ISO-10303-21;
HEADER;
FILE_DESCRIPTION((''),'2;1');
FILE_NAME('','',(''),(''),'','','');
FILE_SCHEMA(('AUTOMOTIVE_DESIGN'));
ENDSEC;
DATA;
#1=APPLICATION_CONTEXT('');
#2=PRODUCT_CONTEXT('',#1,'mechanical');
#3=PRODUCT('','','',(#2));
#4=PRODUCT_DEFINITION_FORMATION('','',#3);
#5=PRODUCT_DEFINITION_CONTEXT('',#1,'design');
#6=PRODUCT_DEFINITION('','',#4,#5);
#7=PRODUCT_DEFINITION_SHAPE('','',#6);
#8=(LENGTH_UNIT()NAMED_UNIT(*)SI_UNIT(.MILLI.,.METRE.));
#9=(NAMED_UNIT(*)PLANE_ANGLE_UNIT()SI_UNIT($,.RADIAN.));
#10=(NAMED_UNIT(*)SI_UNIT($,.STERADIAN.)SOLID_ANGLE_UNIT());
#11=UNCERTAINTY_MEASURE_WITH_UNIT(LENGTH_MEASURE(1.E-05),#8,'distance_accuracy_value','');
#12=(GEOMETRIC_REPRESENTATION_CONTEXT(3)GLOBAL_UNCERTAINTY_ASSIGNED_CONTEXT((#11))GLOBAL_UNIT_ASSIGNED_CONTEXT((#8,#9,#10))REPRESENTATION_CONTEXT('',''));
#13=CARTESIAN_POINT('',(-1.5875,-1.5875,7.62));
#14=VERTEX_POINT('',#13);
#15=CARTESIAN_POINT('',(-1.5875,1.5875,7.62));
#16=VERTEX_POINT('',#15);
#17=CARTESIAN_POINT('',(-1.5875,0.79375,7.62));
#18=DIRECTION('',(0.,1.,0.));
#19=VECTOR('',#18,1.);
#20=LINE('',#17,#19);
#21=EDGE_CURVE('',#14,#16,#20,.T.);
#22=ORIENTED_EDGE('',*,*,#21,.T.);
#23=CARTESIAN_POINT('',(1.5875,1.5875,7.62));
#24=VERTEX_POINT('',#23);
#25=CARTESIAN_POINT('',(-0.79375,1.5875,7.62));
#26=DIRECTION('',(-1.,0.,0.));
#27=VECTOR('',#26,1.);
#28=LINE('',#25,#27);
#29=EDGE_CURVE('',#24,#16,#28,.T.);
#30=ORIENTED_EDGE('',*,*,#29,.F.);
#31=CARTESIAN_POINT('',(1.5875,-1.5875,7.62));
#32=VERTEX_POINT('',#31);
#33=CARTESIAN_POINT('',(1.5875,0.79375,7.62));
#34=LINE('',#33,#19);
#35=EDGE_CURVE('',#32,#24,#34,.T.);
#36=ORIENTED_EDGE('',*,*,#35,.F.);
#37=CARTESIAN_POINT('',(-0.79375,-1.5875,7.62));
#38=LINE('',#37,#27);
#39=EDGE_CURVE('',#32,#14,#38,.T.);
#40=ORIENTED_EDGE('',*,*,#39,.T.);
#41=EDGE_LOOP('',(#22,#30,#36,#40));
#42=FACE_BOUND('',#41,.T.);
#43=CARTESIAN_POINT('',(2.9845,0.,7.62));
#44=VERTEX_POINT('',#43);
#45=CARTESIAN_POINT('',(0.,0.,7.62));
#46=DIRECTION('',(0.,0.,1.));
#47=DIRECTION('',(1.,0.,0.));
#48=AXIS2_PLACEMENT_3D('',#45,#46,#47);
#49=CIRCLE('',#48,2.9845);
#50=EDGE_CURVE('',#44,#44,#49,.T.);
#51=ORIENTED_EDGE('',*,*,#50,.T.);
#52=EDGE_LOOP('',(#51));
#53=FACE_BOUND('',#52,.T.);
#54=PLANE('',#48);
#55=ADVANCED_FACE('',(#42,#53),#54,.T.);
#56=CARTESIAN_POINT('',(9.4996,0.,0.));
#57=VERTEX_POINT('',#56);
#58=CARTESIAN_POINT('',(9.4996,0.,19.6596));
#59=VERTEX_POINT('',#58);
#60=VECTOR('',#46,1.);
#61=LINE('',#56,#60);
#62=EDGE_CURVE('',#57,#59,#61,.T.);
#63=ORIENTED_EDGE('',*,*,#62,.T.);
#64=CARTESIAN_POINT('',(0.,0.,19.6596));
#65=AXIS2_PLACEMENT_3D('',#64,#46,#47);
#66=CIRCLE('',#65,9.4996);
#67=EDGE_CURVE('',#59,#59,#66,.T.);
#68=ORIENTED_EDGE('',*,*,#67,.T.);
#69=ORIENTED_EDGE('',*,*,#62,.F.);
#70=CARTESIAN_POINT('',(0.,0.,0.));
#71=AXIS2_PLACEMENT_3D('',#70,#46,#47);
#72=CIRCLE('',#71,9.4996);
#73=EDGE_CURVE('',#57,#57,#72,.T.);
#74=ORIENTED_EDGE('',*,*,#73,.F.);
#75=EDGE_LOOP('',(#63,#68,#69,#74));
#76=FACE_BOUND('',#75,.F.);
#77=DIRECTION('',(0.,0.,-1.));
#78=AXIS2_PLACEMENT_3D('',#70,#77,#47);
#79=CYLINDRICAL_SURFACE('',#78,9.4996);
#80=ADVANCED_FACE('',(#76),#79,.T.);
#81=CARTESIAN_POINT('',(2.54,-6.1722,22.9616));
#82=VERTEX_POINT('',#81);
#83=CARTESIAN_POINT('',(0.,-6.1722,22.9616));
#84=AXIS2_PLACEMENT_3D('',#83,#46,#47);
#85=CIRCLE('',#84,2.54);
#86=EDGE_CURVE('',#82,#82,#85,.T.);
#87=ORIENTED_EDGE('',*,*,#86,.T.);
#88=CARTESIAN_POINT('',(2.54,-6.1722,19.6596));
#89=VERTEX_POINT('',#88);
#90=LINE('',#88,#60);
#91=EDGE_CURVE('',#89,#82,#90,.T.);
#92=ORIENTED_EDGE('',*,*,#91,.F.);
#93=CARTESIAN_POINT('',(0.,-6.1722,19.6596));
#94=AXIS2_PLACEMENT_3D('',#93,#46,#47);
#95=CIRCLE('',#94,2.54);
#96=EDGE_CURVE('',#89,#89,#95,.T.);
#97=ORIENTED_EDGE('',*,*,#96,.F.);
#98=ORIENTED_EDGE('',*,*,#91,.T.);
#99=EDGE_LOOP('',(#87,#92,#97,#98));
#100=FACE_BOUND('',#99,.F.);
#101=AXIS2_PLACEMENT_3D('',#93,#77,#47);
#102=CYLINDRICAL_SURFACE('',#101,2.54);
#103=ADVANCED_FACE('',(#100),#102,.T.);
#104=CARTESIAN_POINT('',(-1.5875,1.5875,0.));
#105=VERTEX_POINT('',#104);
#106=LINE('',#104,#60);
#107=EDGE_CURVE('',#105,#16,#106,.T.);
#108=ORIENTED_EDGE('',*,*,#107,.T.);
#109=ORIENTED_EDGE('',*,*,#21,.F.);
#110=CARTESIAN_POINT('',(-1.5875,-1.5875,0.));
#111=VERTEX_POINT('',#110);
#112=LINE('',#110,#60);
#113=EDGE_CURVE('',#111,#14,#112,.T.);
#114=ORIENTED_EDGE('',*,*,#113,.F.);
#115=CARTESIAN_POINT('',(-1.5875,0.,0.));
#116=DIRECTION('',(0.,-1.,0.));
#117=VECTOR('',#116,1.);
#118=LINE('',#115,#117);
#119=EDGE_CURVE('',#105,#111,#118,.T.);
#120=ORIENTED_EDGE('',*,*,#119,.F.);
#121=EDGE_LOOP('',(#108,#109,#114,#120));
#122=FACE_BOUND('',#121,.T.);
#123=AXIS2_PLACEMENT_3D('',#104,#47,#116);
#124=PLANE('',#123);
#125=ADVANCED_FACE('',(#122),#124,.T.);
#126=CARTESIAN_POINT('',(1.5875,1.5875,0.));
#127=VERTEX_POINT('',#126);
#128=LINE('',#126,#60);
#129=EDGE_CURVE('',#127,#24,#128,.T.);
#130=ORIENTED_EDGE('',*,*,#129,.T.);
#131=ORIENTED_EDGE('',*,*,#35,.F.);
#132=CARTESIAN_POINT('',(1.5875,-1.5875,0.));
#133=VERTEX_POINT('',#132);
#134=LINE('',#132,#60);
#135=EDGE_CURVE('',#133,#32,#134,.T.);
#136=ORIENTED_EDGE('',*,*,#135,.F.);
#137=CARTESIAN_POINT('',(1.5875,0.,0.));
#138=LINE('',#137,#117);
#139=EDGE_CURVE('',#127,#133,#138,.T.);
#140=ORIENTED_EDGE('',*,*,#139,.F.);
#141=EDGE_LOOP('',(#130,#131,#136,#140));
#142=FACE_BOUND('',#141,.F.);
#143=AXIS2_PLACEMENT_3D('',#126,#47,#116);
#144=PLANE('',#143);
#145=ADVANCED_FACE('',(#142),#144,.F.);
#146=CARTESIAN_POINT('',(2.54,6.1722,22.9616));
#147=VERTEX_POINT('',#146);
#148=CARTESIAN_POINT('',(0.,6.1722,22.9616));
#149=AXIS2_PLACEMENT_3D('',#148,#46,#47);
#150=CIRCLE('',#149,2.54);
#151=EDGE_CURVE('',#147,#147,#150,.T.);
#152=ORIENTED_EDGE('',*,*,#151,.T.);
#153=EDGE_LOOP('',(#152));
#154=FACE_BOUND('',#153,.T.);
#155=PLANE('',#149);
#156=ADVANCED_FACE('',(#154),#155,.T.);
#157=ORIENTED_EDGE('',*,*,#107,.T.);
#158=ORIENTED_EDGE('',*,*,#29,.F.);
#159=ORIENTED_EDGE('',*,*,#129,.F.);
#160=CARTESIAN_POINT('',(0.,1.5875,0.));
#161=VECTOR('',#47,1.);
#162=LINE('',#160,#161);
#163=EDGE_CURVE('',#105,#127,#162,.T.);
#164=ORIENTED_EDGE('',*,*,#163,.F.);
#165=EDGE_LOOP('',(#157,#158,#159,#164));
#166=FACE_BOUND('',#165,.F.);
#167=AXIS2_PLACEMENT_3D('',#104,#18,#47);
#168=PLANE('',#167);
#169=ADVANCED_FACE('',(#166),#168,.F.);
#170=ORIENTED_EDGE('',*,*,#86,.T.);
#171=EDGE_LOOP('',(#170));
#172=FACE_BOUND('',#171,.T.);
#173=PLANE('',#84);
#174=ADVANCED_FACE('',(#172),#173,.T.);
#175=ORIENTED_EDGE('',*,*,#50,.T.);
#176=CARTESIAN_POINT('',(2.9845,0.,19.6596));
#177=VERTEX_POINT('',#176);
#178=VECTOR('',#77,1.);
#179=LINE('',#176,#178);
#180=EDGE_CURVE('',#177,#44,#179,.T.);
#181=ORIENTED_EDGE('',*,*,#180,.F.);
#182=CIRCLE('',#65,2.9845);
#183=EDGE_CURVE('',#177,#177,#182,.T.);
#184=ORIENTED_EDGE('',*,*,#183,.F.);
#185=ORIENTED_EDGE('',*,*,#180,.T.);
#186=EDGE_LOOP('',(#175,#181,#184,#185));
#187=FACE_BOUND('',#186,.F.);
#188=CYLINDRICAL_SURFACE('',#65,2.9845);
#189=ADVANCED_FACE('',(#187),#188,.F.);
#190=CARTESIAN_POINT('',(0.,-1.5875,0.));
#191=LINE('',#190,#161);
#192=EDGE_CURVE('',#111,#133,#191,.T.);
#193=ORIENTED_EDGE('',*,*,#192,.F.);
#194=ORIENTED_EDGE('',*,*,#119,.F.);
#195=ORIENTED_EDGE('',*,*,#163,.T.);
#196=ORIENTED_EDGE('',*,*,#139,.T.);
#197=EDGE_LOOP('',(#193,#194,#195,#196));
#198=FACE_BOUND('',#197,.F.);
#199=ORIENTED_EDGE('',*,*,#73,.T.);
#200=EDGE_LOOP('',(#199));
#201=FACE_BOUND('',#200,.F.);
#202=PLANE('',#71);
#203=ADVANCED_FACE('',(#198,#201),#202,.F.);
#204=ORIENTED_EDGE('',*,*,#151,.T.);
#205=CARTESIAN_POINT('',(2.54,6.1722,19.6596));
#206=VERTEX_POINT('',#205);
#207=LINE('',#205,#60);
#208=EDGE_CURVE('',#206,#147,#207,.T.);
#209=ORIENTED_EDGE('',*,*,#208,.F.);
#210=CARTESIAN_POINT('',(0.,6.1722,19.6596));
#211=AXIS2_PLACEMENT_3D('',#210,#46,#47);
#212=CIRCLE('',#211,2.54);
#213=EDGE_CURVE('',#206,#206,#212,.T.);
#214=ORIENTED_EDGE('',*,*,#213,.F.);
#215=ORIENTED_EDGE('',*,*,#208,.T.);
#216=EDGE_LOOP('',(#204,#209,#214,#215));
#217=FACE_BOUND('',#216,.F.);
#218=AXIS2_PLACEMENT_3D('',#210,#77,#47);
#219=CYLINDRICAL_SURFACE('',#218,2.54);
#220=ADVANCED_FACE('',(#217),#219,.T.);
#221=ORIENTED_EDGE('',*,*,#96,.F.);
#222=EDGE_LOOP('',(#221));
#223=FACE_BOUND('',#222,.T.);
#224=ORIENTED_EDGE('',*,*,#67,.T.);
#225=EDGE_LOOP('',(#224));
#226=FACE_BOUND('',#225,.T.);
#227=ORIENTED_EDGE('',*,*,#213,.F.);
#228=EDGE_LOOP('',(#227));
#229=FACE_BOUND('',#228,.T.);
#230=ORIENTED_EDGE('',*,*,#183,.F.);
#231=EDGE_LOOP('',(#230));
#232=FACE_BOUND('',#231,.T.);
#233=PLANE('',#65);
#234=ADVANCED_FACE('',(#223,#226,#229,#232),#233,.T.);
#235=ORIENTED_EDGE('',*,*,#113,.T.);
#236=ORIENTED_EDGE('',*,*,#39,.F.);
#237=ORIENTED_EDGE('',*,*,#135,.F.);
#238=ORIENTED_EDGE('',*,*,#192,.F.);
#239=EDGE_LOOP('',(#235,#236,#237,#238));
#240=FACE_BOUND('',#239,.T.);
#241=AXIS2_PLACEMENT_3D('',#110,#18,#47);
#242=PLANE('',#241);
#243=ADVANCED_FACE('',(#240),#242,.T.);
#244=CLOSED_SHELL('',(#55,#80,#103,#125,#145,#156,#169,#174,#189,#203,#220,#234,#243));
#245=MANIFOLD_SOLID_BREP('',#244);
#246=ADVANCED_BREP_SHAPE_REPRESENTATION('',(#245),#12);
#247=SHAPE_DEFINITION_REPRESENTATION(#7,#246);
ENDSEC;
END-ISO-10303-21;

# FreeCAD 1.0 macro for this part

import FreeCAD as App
import Part
import Sketcher

V = App.Vector
Q = App.Units.Quantity


def add_polygon(sketch, points):
    """Adds a closed chain of lines whose ends are joined by coincident constraints."""
    first, n = sketch.GeometryCount, len(points)
    for a, b in zip(points, points[1:] + points[:1]):
        sketch.addGeometry(Part.LineSegment(App.Vector(*a, 0), App.Vector(*b, 0)), False)
    for i in range(n):
        sketch.addConstraint(Sketcher.Constraint("Coincident", first + i, 2, first + (i + 1) % n, 1))

doc = App.newDocument("Part")
body = doc.addObject("PartDesign::Body", "Body")

# Sketch on XY plane
sketch1 = doc.addObject("Sketcher::SketchObject", "Sketch")
body.addObject(sketch1)
sketch1.AttachmentSupport = (doc.XY_Plane, [""])
sketch1.MapMode = "FlatFace"
sketch1.addGeometry(Part.Circle(V(0, 0, 0), V(0, 0, 1), 9), False)
sketch1.addConstraint(Sketcher.Constraint("Coincident", 0, 3, -1, 1))
sketch1.addConstraint(Sketcher.Constraint("Diameter", 0, Q("0.748 in")))
pad1 = doc.addObject("PartDesign::Pad", "Pad")
body.addObject(pad1)
pad1.Profile = sketch1
pad1.Length = Q("0.774 in")

# Sketch on XY plane
sketch2 = doc.addObject("Sketcher::SketchObject", "Sketch001")
body.addObject(sketch2)
sketch2.AttachmentSupport = (doc.XY_Plane, [""])
sketch2.MapMode = "FlatFace"
sketch2.AttachmentOffset = App.Placement(V(0, 0, 0.774 * 25.4), App.Rotation())
sketch2.addGeometry(Part.Circle(V(0, 0, 0), V(0, 0, 1), 3), False)
sketch2.addConstraint(Sketcher.Constraint("Coincident", 0, 3, -1, 1))
sketch2.addConstraint(Sketcher.Constraint("Diameter", 0, Q("0.235 in")))
pocket1 = doc.addObject("PartDesign::Pocket", "Pocket")
body.addObject(pocket1)
pocket1.Profile = sketch2
pocket1.Length = Q("0.474 in")

# Sketch on XY plane
sketch3 = doc.addObject("Sketcher::SketchObject", "Sketch002")
body.addObject(sketch3)
sketch3.AttachmentSupport = (doc.XY_Plane, [""])
sketch3.MapMode = "FlatFace"
sketch3.AttachmentOffset = App.Placement(V(0, 0, 0.774 * 25.4), App.Rotation())
sketch3.addGeometry(Part.Circle(V(0, -6.2, 0), V(0, 0, 1), 2.5), False)
sketch3.addGeometry(Part.Circle(V(0, 6.2, 0), V(0, 0, 1), 2.5), False)
sketch3.addConstraint(Sketcher.Constraint("Equal", 0, 1))
sketch3.addConstraint(Sketcher.Constraint("Symmetric", 0, 3, 1, 3, -1, 1))
sketch3.addConstraint(Sketcher.Constraint("PointOnObject", 0, 3, -2))
sketch3.addConstraint(Sketcher.Constraint("Diameter", 0, Q("0.2 in")))
sketch3.addConstraint(Sketcher.Constraint("DistanceY", 0, 3, -1, 1, Q("0.243 in")))
pad2 = doc.addObject("PartDesign::Pad", "Pad001")
body.addObject(pad2)
pad2.Profile = sketch3
pad2.Length = Q("0.13 in")

# Sketch on XY plane
sketch4 = doc.addObject("Sketcher::SketchObject", "Sketch003")
body.addObject(sketch4)
sketch4.AttachmentSupport = (doc.XY_Plane, [""])
sketch4.MapMode = "FlatFace"
add_polygon(sketch4, [(-1.6, -1.6), (-1.6, 1.6), (1.6, 1.6), (1.6, -1.6)])  # lines 0-3
sketch4.addConstraint(Sketcher.Constraint("Vertical", 0))
sketch4.addConstraint(Sketcher.Constraint("Horizontal", 1))
sketch4.addConstraint(Sketcher.Constraint("Vertical", 2))
sketch4.addConstraint(Sketcher.Constraint("Horizontal", 3))
sketch4.addConstraint(Sketcher.Constraint("Symmetric", 0, 2, 2, 2, -1, 1))
sketch4.addConstraint(Sketcher.Constraint("Equal", 3, 0))
sketch4.addConstraint(Sketcher.Constraint("DistanceX", 1, 1, 1, 2, Q("0.125 in")))
pocket2 = doc.addObject("PartDesign::Pocket", "Pocket001")
body.addObject(pocket2)
pocket2.Profile = sketch4
pocket2.Length = Q("1 in")
pocket2.Reversed = True

doc.recompute()
